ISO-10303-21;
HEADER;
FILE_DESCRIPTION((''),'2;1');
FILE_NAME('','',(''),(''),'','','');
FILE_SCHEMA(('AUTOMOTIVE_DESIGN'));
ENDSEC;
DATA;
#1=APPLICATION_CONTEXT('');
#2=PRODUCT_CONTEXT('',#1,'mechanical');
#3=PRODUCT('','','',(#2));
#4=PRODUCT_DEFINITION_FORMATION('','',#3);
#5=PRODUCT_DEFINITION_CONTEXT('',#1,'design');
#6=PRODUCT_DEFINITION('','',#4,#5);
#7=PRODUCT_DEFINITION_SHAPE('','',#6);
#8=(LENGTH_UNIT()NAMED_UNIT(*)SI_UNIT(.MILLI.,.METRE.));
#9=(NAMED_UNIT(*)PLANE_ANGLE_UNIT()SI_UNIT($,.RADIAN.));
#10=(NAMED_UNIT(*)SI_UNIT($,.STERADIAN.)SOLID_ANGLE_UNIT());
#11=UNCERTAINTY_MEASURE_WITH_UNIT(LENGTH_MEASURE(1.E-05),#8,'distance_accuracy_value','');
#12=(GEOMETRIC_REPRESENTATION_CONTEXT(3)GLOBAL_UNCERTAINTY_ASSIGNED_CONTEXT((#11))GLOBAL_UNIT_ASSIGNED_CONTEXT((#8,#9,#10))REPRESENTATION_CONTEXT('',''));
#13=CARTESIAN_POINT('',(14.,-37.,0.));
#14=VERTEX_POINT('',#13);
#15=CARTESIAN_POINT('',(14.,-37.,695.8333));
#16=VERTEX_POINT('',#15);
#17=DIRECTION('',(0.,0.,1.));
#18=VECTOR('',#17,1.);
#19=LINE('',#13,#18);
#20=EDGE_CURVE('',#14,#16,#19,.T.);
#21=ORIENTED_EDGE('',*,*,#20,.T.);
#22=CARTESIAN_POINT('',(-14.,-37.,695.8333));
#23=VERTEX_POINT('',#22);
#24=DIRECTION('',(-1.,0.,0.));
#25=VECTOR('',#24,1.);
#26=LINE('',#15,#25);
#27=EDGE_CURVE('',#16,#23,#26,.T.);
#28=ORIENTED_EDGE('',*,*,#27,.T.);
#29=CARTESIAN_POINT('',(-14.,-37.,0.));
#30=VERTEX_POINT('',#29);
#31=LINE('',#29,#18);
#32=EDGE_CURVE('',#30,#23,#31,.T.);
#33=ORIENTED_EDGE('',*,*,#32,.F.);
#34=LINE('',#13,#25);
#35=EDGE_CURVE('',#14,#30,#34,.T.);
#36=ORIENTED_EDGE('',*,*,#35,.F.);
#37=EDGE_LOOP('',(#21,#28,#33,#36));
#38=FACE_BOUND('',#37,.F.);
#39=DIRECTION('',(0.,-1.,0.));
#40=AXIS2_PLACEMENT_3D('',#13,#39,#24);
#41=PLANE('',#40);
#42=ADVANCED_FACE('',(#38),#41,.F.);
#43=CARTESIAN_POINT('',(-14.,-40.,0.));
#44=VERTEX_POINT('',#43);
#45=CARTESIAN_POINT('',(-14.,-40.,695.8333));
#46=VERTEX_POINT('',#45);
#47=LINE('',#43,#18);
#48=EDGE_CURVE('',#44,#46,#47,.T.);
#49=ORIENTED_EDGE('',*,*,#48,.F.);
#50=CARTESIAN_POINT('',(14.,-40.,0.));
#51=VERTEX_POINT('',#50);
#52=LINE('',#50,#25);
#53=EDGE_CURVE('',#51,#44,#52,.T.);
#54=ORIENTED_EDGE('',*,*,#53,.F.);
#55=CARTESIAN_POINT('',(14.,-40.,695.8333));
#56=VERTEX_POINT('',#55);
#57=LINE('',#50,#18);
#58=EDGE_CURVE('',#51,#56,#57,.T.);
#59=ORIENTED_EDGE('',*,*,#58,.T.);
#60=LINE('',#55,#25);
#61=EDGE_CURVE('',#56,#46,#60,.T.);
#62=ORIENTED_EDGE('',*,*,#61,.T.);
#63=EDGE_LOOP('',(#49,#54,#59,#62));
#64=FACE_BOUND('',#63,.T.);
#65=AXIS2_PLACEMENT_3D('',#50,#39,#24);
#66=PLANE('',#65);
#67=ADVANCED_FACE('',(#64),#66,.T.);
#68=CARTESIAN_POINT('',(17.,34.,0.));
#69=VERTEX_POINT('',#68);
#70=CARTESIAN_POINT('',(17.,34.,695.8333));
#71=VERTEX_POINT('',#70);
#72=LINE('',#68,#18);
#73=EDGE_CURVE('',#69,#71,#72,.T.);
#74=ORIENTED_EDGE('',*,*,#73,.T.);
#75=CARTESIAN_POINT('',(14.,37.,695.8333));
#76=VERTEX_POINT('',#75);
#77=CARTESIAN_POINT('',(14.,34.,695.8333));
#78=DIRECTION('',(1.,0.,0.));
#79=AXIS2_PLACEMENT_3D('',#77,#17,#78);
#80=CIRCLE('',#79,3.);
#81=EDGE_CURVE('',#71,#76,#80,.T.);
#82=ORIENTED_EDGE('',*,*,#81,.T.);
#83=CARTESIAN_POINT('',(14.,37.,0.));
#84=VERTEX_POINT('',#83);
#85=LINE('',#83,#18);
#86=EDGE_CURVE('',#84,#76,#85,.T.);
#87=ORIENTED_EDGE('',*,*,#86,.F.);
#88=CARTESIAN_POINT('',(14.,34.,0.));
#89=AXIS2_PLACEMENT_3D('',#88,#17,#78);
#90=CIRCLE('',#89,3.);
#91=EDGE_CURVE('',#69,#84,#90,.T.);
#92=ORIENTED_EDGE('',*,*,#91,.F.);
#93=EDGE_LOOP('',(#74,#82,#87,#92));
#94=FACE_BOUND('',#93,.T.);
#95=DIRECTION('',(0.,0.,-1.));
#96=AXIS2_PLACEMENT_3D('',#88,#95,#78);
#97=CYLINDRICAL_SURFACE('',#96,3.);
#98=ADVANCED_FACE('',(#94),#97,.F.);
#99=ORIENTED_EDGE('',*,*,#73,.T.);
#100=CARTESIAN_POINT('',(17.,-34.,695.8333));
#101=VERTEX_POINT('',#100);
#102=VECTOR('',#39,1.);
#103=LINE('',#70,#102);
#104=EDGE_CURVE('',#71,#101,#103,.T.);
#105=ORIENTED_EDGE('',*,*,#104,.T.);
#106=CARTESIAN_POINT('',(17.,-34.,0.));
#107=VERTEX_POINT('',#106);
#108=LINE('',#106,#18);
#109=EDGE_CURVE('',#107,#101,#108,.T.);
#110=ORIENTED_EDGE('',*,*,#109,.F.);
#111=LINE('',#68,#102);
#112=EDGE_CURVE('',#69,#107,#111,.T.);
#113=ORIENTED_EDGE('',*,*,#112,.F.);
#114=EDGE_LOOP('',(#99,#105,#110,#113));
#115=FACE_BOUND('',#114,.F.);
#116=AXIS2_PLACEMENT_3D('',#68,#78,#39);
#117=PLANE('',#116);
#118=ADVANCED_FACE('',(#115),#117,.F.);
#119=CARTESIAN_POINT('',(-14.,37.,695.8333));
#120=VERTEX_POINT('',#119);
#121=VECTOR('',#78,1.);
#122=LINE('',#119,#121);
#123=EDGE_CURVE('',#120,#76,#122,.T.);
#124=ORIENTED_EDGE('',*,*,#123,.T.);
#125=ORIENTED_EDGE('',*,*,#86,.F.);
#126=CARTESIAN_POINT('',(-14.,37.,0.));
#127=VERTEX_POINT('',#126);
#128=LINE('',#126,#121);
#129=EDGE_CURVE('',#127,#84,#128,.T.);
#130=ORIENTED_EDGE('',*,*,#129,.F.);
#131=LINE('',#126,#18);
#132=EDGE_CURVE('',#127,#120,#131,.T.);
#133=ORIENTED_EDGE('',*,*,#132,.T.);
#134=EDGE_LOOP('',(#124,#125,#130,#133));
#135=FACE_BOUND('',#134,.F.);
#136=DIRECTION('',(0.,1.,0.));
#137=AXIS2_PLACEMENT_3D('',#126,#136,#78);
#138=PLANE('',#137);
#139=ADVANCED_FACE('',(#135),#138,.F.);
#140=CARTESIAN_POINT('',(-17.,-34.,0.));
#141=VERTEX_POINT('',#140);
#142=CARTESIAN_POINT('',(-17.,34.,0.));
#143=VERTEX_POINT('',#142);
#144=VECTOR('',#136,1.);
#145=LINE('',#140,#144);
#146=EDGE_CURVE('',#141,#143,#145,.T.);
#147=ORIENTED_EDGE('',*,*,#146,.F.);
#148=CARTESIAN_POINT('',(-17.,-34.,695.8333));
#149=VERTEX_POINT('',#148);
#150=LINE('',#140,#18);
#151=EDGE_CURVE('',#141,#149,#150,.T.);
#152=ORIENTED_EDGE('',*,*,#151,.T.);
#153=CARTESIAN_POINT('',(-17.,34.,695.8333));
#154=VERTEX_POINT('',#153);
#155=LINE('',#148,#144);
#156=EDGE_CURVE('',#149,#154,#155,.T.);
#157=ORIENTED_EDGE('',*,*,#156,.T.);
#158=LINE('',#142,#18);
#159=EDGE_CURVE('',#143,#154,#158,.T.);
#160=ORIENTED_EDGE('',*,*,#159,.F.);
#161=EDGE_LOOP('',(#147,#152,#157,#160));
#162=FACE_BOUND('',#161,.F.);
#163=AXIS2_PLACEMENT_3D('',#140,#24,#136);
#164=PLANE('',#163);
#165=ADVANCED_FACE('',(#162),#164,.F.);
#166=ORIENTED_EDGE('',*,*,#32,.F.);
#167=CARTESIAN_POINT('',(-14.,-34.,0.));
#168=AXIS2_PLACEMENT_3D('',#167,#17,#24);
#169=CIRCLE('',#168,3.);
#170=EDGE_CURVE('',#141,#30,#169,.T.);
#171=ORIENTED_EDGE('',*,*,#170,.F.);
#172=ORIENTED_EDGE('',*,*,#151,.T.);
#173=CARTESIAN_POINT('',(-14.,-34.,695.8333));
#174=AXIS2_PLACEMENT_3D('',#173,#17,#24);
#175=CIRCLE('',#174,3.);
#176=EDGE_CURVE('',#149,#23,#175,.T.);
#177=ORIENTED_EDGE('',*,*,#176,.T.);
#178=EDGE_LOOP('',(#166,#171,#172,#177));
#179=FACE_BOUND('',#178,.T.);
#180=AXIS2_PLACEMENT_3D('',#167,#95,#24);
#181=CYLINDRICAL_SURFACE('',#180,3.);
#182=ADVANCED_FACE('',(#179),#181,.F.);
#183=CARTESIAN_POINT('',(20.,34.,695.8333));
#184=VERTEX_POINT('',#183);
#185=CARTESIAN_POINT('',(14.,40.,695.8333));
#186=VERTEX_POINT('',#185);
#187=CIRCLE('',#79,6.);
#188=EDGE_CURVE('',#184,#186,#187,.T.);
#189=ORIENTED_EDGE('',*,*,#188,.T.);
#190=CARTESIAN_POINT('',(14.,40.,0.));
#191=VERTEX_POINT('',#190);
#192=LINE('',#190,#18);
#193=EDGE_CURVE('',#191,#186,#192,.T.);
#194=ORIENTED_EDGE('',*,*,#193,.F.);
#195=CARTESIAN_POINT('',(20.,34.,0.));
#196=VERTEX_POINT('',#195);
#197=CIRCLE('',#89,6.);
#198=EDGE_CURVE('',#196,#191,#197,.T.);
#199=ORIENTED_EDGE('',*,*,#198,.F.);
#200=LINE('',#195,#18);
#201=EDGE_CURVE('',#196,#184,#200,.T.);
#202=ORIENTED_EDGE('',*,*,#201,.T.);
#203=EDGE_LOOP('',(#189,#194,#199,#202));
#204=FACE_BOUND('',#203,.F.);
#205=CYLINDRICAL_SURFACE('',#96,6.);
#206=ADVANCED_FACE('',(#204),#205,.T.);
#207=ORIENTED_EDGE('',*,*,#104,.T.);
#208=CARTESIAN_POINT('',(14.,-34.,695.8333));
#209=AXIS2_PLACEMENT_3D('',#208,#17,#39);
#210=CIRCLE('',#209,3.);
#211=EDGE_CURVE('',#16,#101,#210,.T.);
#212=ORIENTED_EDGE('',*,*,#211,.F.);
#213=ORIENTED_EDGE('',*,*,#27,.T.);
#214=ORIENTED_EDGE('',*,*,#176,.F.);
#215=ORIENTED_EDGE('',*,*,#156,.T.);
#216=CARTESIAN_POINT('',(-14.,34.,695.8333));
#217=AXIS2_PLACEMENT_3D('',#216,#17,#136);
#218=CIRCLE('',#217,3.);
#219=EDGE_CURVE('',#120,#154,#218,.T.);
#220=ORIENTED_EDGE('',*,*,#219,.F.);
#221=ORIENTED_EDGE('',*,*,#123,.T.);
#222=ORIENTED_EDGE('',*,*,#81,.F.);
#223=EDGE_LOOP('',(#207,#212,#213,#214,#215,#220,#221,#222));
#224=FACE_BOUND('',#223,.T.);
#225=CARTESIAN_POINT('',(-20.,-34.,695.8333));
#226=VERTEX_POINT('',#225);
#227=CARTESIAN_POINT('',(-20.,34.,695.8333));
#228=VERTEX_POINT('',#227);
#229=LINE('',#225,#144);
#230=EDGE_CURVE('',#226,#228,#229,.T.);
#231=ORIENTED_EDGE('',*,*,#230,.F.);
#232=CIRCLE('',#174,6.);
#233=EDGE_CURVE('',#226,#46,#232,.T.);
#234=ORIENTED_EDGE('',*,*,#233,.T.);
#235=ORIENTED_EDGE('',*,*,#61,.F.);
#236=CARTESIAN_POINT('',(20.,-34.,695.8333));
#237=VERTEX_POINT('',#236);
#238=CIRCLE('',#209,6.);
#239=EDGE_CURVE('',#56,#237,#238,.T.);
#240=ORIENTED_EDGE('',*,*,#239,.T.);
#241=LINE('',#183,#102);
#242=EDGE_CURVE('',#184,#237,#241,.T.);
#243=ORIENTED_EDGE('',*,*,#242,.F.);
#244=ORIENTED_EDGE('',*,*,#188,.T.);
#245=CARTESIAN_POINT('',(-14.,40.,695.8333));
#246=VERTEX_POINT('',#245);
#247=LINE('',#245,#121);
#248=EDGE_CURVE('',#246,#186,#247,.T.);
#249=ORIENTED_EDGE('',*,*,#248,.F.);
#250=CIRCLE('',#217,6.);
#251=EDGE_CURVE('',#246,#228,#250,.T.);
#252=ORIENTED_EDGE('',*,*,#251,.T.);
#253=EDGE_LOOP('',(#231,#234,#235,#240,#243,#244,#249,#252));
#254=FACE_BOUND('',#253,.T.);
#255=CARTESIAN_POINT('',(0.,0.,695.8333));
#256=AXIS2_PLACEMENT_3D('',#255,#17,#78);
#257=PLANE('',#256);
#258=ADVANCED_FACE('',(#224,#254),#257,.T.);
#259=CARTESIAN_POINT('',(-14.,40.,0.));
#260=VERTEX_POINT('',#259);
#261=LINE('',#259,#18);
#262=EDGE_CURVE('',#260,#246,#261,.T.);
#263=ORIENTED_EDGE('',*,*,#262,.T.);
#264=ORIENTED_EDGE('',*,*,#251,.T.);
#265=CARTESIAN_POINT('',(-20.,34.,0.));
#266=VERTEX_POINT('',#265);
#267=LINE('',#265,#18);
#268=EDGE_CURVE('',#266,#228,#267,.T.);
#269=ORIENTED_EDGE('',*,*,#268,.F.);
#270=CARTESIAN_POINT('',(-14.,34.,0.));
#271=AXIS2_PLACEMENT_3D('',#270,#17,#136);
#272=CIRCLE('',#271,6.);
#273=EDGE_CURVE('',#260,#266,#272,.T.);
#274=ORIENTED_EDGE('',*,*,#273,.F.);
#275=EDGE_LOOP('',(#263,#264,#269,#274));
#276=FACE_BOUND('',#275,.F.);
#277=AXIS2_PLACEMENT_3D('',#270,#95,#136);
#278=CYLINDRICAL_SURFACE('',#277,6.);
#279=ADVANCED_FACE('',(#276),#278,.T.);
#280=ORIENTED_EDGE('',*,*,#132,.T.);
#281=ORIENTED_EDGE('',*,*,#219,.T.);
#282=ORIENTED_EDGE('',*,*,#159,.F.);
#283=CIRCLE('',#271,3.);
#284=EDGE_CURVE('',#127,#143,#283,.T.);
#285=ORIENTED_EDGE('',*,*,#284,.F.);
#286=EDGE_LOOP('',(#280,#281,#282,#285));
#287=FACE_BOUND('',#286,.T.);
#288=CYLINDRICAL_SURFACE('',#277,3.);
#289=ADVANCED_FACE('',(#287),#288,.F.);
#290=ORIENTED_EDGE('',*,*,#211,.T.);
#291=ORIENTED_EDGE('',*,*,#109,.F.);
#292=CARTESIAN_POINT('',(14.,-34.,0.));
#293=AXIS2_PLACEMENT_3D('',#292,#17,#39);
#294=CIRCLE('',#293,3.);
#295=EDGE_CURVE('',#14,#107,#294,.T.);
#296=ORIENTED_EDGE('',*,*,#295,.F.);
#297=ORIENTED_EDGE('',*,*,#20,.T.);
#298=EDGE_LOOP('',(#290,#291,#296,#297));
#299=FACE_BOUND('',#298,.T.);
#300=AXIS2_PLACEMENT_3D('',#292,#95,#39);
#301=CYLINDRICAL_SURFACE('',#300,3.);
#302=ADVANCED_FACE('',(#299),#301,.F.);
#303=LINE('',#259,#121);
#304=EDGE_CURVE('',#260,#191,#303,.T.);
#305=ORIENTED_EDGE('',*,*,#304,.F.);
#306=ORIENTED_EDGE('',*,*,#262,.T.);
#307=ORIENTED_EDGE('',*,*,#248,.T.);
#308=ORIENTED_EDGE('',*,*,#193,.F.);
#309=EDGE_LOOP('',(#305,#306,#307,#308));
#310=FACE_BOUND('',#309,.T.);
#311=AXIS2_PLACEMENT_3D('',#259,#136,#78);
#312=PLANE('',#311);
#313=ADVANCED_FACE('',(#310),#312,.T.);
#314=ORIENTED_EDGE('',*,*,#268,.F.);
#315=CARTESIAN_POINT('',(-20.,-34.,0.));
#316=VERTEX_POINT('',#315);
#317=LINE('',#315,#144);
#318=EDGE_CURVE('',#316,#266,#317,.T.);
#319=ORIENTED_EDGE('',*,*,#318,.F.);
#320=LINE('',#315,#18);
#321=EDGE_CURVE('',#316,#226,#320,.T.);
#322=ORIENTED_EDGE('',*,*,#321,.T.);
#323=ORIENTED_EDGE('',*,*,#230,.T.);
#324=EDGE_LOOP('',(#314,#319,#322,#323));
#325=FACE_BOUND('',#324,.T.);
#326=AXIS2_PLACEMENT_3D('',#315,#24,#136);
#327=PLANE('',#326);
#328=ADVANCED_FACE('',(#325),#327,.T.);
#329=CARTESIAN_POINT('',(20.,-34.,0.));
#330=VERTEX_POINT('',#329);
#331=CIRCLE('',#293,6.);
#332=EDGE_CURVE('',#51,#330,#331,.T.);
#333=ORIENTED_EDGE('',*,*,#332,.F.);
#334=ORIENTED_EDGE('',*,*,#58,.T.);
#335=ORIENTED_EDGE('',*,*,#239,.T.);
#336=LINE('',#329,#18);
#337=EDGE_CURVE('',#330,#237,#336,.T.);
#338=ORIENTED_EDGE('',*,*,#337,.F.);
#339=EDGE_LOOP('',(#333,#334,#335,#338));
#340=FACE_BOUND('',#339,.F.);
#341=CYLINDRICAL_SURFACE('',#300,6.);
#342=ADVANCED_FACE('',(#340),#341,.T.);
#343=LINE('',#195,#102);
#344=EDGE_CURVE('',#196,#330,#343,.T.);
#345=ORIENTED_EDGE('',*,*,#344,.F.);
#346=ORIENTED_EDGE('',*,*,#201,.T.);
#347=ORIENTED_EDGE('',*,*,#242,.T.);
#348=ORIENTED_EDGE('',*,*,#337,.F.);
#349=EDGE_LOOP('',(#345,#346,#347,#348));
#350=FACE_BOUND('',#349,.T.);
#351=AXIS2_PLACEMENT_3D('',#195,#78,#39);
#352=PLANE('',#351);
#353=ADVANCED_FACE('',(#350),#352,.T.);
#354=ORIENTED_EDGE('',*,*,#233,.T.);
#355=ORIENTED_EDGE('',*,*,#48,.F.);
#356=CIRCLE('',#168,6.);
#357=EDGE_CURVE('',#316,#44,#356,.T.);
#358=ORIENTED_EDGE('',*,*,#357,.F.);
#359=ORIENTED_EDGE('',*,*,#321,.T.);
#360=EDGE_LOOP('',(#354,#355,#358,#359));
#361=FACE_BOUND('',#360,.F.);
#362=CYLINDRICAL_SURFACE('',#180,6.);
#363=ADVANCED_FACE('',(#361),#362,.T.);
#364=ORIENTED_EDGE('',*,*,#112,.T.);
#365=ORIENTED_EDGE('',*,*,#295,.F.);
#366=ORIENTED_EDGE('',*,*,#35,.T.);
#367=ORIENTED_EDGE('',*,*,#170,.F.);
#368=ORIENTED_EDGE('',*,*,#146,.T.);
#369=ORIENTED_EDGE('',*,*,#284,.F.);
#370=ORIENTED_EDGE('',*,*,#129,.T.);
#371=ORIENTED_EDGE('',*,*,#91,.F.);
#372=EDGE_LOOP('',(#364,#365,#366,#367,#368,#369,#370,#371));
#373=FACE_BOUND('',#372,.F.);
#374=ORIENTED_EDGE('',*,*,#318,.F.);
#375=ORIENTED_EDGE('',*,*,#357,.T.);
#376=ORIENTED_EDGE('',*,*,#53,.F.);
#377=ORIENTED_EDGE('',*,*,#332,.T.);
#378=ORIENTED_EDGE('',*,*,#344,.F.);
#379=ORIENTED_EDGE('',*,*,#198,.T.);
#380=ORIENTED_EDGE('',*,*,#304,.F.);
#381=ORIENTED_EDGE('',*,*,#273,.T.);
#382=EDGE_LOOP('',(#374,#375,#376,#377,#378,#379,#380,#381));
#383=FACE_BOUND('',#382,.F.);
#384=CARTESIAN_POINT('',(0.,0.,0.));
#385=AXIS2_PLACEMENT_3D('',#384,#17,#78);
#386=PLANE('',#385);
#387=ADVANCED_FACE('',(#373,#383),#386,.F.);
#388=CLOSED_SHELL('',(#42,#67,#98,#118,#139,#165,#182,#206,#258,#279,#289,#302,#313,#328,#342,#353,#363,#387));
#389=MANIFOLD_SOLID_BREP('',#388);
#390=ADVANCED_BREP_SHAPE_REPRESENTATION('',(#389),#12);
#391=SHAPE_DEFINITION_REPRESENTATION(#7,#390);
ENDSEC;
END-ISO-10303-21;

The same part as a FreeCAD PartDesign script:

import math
import FreeCAD as App
import Part
import Sketcher

V = App.Vector
Q = App.Units.Quantity

doc = App.newDocument("Part")
body = doc.addObject("PartDesign::Body", "Body")

# Sketch on XY plane
sketch1 = body.newObject("Sketcher::SketchObject", "Sketch")
sketch1.AttachmentSupport = (doc.getObject("XY_Plane"), [""])
sketch1.MapMode = "FlatFace"
sketch1.addGeometry([
    Part.LineSegment(V(-20, 34, 0), V(-20, -34, 0)),  # 0
    Part.ArcOfCircle(Part.Circle(V(-14, -34, 0), V(0, 0, 1), 6), math.radians(180), math.radians(270)),  # 1
    Part.LineSegment(V(-14, -40, 0), V(14, -40, 0)),  # 2
    Part.ArcOfCircle(Part.Circle(V(14, -34, 0), V(0, 0, 1), 6), math.radians(-90), math.radians(0)),  # 3
    Part.LineSegment(V(20, -34, 0), V(20, 34, 0)),  # 4
    Part.ArcOfCircle(Part.Circle(V(14, 34, 0), V(0, 0, 1), 6), math.radians(0), math.radians(90)),  # 5
    Part.LineSegment(V(14, 40, 0), V(-14, 40, 0)),  # 6
    Part.ArcOfCircle(Part.Circle(V(-14, 34, 0), V(0, 0, 1), 6), math.radians(90), math.radians(180)),  # 7
    Part.ArcOfCircle(Part.Circle(V(-14, 34, 0), V(0, 0, 1), 3), math.radians(90), math.radians(180)),  # 8
    Part.LineSegment(V(-14, 37, 0), V(14, 37, 0)),  # 9
    Part.ArcOfCircle(Part.Circle(V(14, 34, 0), V(0, 0, 1), 3), math.radians(0), math.radians(90)),  # 10
    Part.LineSegment(V(17, 34, 0), V(17, -34, 0)),  # 11
    Part.ArcOfCircle(Part.Circle(V(14, -34, 0), V(0, 0, 1), 3), math.radians(-90), math.radians(0)),  # 12
    Part.LineSegment(V(14, -37, 0), V(-14, -37, 0)),  # 13
    Part.ArcOfCircle(Part.Circle(V(-14, -34, 0), V(0, 0, 1), 3), math.radians(180), math.radians(270)),  # 14
    Part.LineSegment(V(-17, -34, 0), V(-17, 34, 0)),  # 15
], False)
sketch1.addConstraint([
    Sketcher.Constraint("Tangent", 0, 2, 1, 1),
    Sketcher.Constraint("Tangent", 1, 2, 2, 1),
    Sketcher.Constraint("Tangent", 2, 2, 3, 1),
    Sketcher.Constraint("Tangent", 3, 2, 4, 1),
    Sketcher.Constraint("Tangent", 4, 2, 5, 1),
    Sketcher.Constraint("Tangent", 5, 2, 6, 1),
    Sketcher.Constraint("Tangent", 6, 2, 7, 1),
    Sketcher.Constraint("Tangent", 7, 2, 0, 1),
    Sketcher.Constraint("Tangent", 8, 1, 9, 1),
    Sketcher.Constraint("Tangent", 9, 2, 10, 2),
    Sketcher.Constraint("Tangent", 10, 1, 11, 1),
    Sketcher.Constraint("Tangent", 11, 2, 12, 2),
    Sketcher.Constraint("Tangent", 12, 1, 13, 1),
    Sketcher.Constraint("Tangent", 13, 2, 14, 2),
    Sketcher.Constraint("Tangent", 14, 1, 15, 1),
    Sketcher.Constraint("Tangent", 15, 2, 8, 2),
    Sketcher.Constraint("Vertical", 0),
    Sketcher.Constraint("Horizontal", 2),
    Sketcher.Constraint("Vertical", 4),
    Sketcher.Constraint("Horizontal", 6),
    Sketcher.Constraint("Horizontal", 9),
    Sketcher.Constraint("Vertical", 11),
    Sketcher.Constraint("Horizontal", 13),
    Sketcher.Constraint("Vertical", 15),
    Sketcher.Constraint("Coincident", 8, 3, 7, 3),
    Sketcher.Constraint("Coincident", 10, 3, 5, 3),
    Sketcher.Constraint("Coincident", 12, 3, 3, 3),
    Sketcher.Constraint("Equal", 1, 3),
    Sketcher.Constraint("Equal", 3, 5),
    Sketcher.Constraint("Equal", 5, 7),
    Sketcher.Constraint("Equal", 12, 14),
    Sketcher.Constraint("Symmetric", 1, 3, 5, 3, -1, 1),
    Sketcher.Constraint("Radius", 1, Q("6 mm")),
    Sketcher.Constraint("Radius", 8, Q("3 mm")),
    Sketcher.Constraint("DistanceX", 0, 2, -1, 1, Q("20 mm")),
    Sketcher.Constraint("DistanceY", 1, 2, -1, 1, Q("40 mm")),
])
pad1 = body.newObject("PartDesign::Pad", "Pad")
pad1.Profile = sketch1
pad1.Length = 695.8333

doc.recompute()
